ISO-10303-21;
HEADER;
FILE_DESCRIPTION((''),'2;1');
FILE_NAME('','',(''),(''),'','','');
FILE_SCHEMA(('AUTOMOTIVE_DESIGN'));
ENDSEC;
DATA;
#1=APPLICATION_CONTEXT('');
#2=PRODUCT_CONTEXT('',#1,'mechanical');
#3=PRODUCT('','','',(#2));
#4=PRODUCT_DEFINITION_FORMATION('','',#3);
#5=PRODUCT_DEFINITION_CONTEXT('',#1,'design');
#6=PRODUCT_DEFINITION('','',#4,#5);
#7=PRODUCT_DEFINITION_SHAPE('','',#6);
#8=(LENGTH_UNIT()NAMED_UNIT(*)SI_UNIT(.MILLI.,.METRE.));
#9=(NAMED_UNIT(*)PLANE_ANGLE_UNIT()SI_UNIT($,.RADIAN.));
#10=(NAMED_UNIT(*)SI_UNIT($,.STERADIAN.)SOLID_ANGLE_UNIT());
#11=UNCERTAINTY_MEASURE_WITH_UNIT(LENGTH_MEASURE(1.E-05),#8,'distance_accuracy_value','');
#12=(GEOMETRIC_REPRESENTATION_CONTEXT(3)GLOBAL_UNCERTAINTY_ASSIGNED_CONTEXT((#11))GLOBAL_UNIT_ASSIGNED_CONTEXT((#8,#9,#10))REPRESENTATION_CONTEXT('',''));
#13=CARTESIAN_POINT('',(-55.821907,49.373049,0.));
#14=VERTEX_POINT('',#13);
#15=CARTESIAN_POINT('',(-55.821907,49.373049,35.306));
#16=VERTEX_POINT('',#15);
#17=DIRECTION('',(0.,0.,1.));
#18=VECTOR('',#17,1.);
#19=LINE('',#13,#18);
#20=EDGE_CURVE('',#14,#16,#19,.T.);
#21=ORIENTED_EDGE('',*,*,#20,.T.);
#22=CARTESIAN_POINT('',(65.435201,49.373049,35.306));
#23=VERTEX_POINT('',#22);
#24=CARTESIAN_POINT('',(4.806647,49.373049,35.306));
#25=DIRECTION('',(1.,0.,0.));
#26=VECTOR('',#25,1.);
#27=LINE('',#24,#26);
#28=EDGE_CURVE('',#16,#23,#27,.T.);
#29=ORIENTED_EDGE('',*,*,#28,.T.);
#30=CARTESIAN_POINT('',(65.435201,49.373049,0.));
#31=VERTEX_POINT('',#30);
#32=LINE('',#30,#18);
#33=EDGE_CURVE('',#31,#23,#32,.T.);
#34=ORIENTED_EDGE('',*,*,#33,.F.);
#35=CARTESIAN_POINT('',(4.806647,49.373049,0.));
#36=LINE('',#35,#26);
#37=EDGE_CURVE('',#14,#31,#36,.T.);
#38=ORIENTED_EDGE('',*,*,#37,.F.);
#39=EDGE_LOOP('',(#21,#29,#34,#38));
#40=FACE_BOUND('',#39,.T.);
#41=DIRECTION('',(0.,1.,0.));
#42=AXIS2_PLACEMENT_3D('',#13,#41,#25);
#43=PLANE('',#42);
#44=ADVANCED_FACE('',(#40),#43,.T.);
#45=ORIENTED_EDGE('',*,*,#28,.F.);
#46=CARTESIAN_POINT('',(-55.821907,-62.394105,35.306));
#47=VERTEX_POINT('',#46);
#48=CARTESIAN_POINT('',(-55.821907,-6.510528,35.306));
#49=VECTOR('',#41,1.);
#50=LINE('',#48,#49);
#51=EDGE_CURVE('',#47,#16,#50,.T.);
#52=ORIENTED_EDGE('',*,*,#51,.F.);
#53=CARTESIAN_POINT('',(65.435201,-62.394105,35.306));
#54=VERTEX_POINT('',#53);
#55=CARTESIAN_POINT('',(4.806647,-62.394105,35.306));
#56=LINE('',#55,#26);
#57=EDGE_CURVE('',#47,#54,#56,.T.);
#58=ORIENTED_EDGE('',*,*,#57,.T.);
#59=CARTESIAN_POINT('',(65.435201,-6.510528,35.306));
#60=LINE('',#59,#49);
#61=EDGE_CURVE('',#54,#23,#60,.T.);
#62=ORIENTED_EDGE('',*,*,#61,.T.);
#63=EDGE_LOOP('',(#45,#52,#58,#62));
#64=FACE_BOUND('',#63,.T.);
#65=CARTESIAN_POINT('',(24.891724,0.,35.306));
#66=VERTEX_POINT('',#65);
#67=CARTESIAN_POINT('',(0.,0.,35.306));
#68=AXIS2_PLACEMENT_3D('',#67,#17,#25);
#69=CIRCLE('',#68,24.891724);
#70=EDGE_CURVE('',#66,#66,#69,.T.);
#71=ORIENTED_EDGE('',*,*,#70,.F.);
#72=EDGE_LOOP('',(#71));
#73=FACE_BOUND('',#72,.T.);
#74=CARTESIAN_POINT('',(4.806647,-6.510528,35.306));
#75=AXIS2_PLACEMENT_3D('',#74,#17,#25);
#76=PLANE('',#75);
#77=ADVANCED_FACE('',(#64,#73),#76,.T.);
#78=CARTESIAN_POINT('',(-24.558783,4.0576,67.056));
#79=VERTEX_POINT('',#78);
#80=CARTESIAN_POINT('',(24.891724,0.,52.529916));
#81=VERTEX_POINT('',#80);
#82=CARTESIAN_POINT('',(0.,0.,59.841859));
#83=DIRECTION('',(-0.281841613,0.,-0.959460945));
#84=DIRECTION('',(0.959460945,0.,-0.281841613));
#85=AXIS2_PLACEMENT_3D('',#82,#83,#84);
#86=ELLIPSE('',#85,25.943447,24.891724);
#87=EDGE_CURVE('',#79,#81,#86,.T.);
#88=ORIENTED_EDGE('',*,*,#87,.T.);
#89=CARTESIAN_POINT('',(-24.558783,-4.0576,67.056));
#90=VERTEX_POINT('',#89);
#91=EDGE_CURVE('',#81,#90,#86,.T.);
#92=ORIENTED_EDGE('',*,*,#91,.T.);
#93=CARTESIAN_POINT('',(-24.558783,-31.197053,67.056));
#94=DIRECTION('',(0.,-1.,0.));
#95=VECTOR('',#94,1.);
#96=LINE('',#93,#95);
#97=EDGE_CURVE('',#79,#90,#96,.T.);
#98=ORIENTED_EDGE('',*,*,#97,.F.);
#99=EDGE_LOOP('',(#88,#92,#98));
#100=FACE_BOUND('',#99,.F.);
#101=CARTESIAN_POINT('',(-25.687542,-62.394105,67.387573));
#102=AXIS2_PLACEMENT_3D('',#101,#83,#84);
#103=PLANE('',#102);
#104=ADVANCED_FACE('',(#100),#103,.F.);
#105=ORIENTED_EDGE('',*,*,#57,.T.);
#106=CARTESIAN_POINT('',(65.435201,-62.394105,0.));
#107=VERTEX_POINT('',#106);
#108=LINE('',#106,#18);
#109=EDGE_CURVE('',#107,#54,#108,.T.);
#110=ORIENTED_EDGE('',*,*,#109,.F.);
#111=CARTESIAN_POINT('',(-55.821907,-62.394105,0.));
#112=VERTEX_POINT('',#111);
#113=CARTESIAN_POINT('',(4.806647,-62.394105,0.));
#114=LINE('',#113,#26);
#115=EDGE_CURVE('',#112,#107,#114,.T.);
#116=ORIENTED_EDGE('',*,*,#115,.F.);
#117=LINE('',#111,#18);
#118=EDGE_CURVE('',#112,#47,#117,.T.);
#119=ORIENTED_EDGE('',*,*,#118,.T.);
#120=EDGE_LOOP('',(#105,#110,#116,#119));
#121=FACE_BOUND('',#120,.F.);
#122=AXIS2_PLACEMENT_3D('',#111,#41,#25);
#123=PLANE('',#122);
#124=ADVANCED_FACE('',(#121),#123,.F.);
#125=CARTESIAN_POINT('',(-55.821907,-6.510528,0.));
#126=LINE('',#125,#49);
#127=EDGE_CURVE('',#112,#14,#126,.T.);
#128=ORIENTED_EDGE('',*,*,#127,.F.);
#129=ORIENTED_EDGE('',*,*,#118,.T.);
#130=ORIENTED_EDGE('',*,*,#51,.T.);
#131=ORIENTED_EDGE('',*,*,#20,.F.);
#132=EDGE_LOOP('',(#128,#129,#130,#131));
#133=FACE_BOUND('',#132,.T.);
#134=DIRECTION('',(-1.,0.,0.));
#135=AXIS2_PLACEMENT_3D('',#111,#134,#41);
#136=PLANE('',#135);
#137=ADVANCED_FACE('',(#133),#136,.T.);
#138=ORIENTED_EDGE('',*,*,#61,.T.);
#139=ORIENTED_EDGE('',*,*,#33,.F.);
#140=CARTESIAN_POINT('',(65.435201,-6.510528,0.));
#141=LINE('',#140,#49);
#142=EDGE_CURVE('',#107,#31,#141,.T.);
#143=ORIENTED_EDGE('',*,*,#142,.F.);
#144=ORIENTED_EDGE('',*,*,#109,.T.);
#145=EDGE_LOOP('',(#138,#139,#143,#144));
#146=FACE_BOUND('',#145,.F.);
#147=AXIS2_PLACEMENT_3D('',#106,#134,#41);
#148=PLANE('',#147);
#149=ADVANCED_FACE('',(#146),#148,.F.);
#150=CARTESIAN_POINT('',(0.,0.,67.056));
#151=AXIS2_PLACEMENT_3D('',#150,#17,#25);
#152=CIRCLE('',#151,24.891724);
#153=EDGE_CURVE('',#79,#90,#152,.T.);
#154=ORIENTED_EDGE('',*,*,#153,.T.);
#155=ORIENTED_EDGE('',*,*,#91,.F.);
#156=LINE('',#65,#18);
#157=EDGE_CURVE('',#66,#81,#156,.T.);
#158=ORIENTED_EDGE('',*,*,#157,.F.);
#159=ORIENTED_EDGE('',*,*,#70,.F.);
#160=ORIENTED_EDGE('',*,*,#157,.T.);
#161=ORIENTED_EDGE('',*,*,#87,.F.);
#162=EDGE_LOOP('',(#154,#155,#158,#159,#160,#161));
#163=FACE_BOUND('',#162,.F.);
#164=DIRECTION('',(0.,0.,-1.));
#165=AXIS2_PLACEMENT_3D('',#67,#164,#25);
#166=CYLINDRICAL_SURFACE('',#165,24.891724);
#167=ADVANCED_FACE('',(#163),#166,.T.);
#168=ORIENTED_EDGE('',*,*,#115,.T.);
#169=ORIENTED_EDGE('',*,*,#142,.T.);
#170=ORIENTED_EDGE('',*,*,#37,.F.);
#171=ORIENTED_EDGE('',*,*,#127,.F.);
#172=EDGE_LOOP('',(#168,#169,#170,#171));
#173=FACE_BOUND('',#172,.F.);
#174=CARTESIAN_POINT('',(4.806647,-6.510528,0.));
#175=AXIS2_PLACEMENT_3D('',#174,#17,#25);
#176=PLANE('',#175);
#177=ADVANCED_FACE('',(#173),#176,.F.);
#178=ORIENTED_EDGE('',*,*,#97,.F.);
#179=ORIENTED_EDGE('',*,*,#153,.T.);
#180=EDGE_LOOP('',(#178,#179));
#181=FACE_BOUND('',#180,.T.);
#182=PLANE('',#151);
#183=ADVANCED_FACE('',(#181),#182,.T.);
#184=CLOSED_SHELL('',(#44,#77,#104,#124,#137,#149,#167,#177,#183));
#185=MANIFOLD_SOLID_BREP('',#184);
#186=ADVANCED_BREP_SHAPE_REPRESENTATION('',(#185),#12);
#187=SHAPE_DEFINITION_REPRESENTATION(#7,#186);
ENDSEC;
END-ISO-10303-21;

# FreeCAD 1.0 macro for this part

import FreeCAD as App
import Part
import Sketcher
from FreeCAD import Vector


def add_polygon(sketch, points):
    """Adds a closed chain of lines whose ends are joined by coincident constraints."""
    first, n = sketch.GeometryCount, len(points)
    for a, b in zip(points, points[1:] + points[:1]):
        sketch.addGeometry(Part.LineSegment(App.Vector(*a, 0), App.Vector(*b, 0)), False)
    for i in range(n):
        sketch.addConstraint(Sketcher.Constraint("Coincident", first + i, 2, first + (i + 1) % n, 1))

doc = App.newDocument("Part")
params = doc.addObject("Spreadsheet::Sheet", "Params")
for row, (alias, value) in enumerate([
    ("pad1_length", "1.39 in"),
    ("pad2_length", "1.25 in"),
    ("pocket1_length", "6.01 in"),
], start=1):
    params.set(f"A{row}", alias)
    params.set(f"B{row}", "=" + value)
    params.setAlias(f"B{row}", alias)

body = doc.addObject("PartDesign::Body", "Body")

sketch1 = body.newObject("Sketcher::SketchObject", "Sketch")
sketch1.AttachmentSupport = (doc.getObject("XY_Plane"), [""])
sketch1.MapMode = "FlatFace"
add_polygon(sketch1, [(-56, 49), (-56, -62), (65, -62), (65, 49)])
sketch1.addConstraint([
    Sketcher.Constraint("Vertical", 0),
    Sketcher.Constraint("Horizontal", 1),
    Sketcher.Constraint("Vertical", 2),
    Sketcher.Constraint("Horizontal", 3),
    Sketcher.Constraint("DistanceX", 1, 1, 1, 2, 121.257108),
    Sketcher.Constraint("DistanceX", -1, 1, 1, 2, 65.435201),
    Sketcher.Constraint("DistanceY", 0, 2, 0, 1, 111.767154),
    Sketcher.Constraint("DistanceY", -1, 1, 2, 2, 49.373049),
])
pad1 = body.newObject("PartDesign::Pad", "Pad")
pad1.Profile = sketch1
pad1.setExpression("Length", "Params.pad1_length")

sketch2 = body.newObject("Sketcher::SketchObject", "Sketch001")
sketch2.AttachmentSupport = (doc.getObject("XY_Plane"), [""])
sketch2.MapMode = "FlatFace"
sketch2.AttachmentOffset = App.Placement(Vector(0, 0, 1.39 * 25.4), App.Rotation())
sketch2.addGeometry(Part.Circle(Vector(0, 0, 0), Vector(0, 0, 1), 25), False)
sketch2.addConstraint([
    Sketcher.Constraint("Coincident", 0, 3, -1, 1),
    Sketcher.Constraint("Diameter", 0, 49.783448),
])
pad2 = body.newObject("PartDesign::Pad", "Pad001")
pad2.Profile = sketch2
pad2.setExpression("Length", "Params.pad2_length")

sketch3 = body.newObject("Sketcher::SketchObject", "Sketch002")
sketch3.AttachmentSupport = (doc.getObject("XZ_Plane"), [""])
sketch3.MapMode = "FlatFace"
sketch3.AttachmentOffset = App.Placement(Vector(0, 0, 62.394105), App.Rotation())
add_polygon(sketch3, [(-27, 79), (-26, 67), (32, 50), (32, 79)])
sketch3.addConstraint([
    Sketcher.Constraint("Vertical", 2),
    Sketcher.Constraint("Horizontal", 3),
    Sketcher.Constraint("Distance", 0, 12.067549),
    Sketcher.Constraint("DistanceX", 3, 2, 3, 1, 59.536282),
    Sketcher.Constraint("DistanceY", 2, 1, 2, 2, 29.042087),
    Sketcher.Constraint("DistanceY", -1, 1, 1, 2, 50.325349),
    Sketcher.Constraint("DistanceX", 3, 2, -1, 1, 27.139649),
    Sketcher.Constraint("Distance", 1, 60.538342),
])
pocket1 = body.newObject("PartDesign::Pocket", "Pocket")
pocket1.Profile = sketch3
pocket1.setExpression("Length", "Params.pocket1_length")

doc.recompute()
